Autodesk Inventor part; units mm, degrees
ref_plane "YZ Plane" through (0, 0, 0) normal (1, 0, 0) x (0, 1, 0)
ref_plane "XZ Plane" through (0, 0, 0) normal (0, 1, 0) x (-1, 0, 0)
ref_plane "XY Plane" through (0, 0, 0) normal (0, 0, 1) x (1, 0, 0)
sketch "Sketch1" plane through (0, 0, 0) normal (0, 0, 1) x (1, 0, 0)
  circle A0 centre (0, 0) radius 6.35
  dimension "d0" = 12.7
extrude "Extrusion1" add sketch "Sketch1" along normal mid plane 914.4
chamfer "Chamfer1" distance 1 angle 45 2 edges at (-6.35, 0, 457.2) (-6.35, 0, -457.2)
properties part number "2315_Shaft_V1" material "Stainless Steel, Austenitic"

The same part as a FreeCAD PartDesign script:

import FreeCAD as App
import Part
import Sketcher
from FreeCAD import Vector
Q = App.Units.Quantity


def edges_at(feature, points):
    """Names of the edges that pass closest to the given points."""
    edges = feature.Shape.Edges
    near = lambda p: min(range(len(edges)), key=lambda i: edges[i].distToShape(Part.Vertex(*p))[0])
    return sorted({f"Edge{near(p) + 1}" for p in points})

doc = App.newDocument("Part")
body = doc.addObject("PartDesign::Body", "Body")

# Sketch on XY plane
sketch1 = doc.addObject("Sketcher::SketchObject", "Sketch")
body.addObject(sketch1)
sketch1.AttachmentSupport = (doc.XY_Plane, [""])
sketch1.MapMode = "FlatFace"
sketch1.addGeometry(Part.Circle(Vector(0, 0, 0), Vector(0, 0, 1), 6), False)
sketch1.addConstraint([
    Sketcher.Constraint("Coincident", 0, 3, -1, 1),
    Sketcher.Constraint("Diameter", 0, Q("0.5 in")),
])
pad1 = doc.addObject("PartDesign::Pad", "Pad")
body.addObject(pad1)
pad1.Profile = sketch1
pad1.Length = Q("36 in")
pad1.Midplane = True
doc.recompute()

chamfer = doc.addObject("PartDesign::Chamfer", "Chamfer")
body.addObject(chamfer)
chamfer.Base = (pad1, edges_at(pad1, [(-6.35, 0, 457.2), (-6.35, 0, -457.2)]))
chamfer.Size = 1

doc.recompute()
